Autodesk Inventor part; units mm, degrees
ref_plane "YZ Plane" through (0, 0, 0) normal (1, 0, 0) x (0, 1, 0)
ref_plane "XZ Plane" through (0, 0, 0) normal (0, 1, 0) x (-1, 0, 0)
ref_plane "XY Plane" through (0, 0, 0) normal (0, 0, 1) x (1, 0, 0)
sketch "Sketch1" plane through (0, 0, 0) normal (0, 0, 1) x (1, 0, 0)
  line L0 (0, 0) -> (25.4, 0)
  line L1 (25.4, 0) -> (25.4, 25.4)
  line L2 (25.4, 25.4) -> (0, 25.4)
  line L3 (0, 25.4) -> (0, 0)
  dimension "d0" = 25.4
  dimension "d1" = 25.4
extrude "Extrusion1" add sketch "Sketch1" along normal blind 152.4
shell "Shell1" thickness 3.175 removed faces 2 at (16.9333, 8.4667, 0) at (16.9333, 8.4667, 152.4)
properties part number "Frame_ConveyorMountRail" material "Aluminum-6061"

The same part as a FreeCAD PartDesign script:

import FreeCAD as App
import Part
import Sketcher
from FreeCAD import Vector
Q = App.Units.Quantity


def faces_at(feature, points):
    """Names of the faces that lie closest to the given points."""
    faces = feature.Shape.Faces
    near = lambda p: min(range(len(faces)), key=lambda i: faces[i].distToShape(Part.Vertex(*p))[0])
    return sorted({f"Face{near(p) + 1}" for p in points})


def add_polygon(sketch, points):
    """Adds a closed chain of lines whose ends are joined by coincident constraints."""
    first, n = sketch.GeometryCount, len(points)
    for a, b in zip(points, points[1:] + points[:1]):
        sketch.addGeometry(Part.LineSegment(App.Vector(*a, 0), App.Vector(*b, 0)), False)
    for i in range(n):
        sketch.addConstraint(Sketcher.Constraint("Coincident", first + i, 2, first + (i + 1) % n, 1))

doc = App.newDocument("Part")
body = doc.addObject("PartDesign::Body", "Body")

# Sketch on XY plane
sketch1 = body.newObject("Sketcher::SketchObject", "Sketch")
sketch1.AttachmentSupport = (doc.getObject("XY_Plane"), [""])
sketch1.MapMode = "FlatFace"
add_polygon(sketch1, [(0, 25.4), (0, 0), (25.4, 0), (25.4, 25.4)])  # lines 0-3
sketch1.addConstraint(Sketcher.Constraint("Vertical", 0))
sketch1.addConstraint(Sketcher.Constraint("Horizontal", 1))
sketch1.addConstraint(Sketcher.Constraint("Vertical", 2))
sketch1.addConstraint(Sketcher.Constraint("Horizontal", 3))
sketch1.addConstraint(Sketcher.Constraint("Coincident", 0, 2, -1, 1))
sketch1.addConstraint(Sketcher.Constraint("Equal", 3, 0))
sketch1.addConstraint(Sketcher.Constraint("DistanceX", 1, 1, 1, 2, Q("1 in")))
pad1 = body.newObject("PartDesign::Pad", "Pad")
pad1.Profile = sketch1
pad1.Length = Q("6 in")
doc.recompute()

thickness = body.newObject("PartDesign::Thickness", "Thickness")
thickness.Base = (pad1, faces_at(pad1, [(16.933, 8.467, 0), (16.933, 8.467, 152.4)]))
thickness.Value = Q("0.125 in")
thickness.Reversed = True
thickness.Join = "Intersection"

doc.recompute()
